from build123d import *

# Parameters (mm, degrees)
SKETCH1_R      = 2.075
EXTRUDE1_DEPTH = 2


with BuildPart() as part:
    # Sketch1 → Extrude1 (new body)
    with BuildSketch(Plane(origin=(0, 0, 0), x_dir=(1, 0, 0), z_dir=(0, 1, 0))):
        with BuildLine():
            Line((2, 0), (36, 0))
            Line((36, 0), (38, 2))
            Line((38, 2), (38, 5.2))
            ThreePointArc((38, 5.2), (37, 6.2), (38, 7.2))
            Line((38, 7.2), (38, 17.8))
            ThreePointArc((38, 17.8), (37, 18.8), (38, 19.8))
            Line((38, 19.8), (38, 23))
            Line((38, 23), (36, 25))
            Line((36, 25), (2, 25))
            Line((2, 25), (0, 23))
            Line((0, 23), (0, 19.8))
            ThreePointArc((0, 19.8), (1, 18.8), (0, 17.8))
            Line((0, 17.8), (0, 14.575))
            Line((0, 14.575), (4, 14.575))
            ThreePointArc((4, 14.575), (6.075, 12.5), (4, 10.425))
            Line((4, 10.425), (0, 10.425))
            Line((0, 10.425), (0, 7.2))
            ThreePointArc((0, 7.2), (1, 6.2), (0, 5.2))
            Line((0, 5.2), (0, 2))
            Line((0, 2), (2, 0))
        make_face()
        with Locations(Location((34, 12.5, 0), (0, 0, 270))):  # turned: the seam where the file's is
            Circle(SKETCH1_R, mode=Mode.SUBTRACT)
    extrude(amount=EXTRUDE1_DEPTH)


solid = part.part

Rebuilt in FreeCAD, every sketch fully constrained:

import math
import FreeCAD as App
import Part
import Sketcher
Q = App.Units.Quantity

doc = App.newDocument("Part")
body = doc.addObject("PartDesign::Body", "Body")

# Sketch on XZ plane
sketch1 = body.newObject("Sketcher::SketchObject", "Sketch")
sketch1.AttachmentSupport = (doc.getObject("XZ_Plane"), [""])
sketch1.MapMode = "FlatFace"
sketch1.addGeometry([
    Part.LineSegment(App.Vector(2, 0, 0), App.Vector(36, 0, 0)),  # 0
    Part.LineSegment(App.Vector(36, 0, 0), App.Vector(38, -2, 0)),  # 1
    Part.LineSegment(App.Vector(38, -2, 0), App.Vector(38, -5.2, 0)),  # 2
    Part.ArcOfCircle(Part.Circle(App.Vector(38, -6.2, 0), App.Vector(0, 0, 1), 1), math.radians(90), math.radians(270)),  # 3
    Part.LineSegment(App.Vector(38, -7.2, 0), App.Vector(38, -17.8, 0)),  # 4
    Part.ArcOfCircle(Part.Circle(App.Vector(38, -18.8, 0), App.Vector(0, 0, 1), 1), math.radians(90), math.radians(270)),  # 5
    Part.LineSegment(App.Vector(38, -19.8, 0), App.Vector(38, -23, 0)),  # 6
    Part.LineSegment(App.Vector(38, -23, 0), App.Vector(36, -25, 0)),  # 7
    Part.LineSegment(App.Vector(36, -25, 0), App.Vector(2, -25, 0)),  # 8
    Part.LineSegment(App.Vector(2, -25, 0), App.Vector(0, -23, 0)),  # 9
    Part.LineSegment(App.Vector(0, -23, 0), App.Vector(0, -19.8, 0)),  # 10
    Part.ArcOfCircle(Part.Circle(App.Vector(0, -18.8, 0), App.Vector(0, 0, 1), 1), math.radians(-90), math.radians(90)),  # 11
    Part.LineSegment(App.Vector(0, -17.8, 0), App.Vector(0, -14.6, 0)),  # 12
    Part.LineSegment(App.Vector(0, -14.6, 0), App.Vector(4, -14.6, 0)),  # 13
    Part.ArcOfCircle(Part.Circle(App.Vector(4, -12.5, 0), App.Vector(0, 0, 1), 2.1), math.radians(-90), math.radians(90)),  # 14
    Part.LineSegment(App.Vector(4, -10.4, 0), App.Vector(0, -10.4, 0)),  # 15
    Part.LineSegment(App.Vector(0, -10.4, 0), App.Vector(0, -7.2, 0)),  # 16
    Part.ArcOfCircle(Part.Circle(App.Vector(0, -6.2, 0), App.Vector(0, 0, 1), 1), math.radians(-90), math.radians(90)),  # 17
    Part.LineSegment(App.Vector(0, -5.2, 0), App.Vector(0, -2, 0)),  # 18
    Part.LineSegment(App.Vector(0, -2, 0), App.Vector(2, 0, 0)),  # 19
    Part.Circle(App.Vector(34, -12.5, 0), App.Vector(0, 0, 1), 2.1),  # 20
], False)
sketch1.addConstraint([
    Sketcher.Constraint("Coincident", 0, 2, 1, 1),
    Sketcher.Constraint("Coincident", 1, 2, 2, 1),
    Sketcher.Constraint("Coincident", 2, 2, 3, 1),
    Sketcher.Constraint("Coincident", 3, 2, 4, 1),
    Sketcher.Constraint("Coincident", 4, 2, 5, 1),
    Sketcher.Constraint("Coincident", 5, 2, 6, 1),
    Sketcher.Constraint("Coincident", 6, 2, 7, 1),
    Sketcher.Constraint("Coincident", 7, 2, 8, 1),
    Sketcher.Constraint("Coincident", 8, 2, 9, 1),
    Sketcher.Constraint("Coincident", 9, 2, 10, 1),
    Sketcher.Constraint("Coincident", 10, 2, 11, 1),
    Sketcher.Constraint("Coincident", 11, 2, 12, 1),
    Sketcher.Constraint("Coincident", 12, 2, 13, 1),
    Sketcher.Constraint("Tangent", 13, 2, 14, 1),
    Sketcher.Constraint("Tangent", 14, 2, 15, 1),
    Sketcher.Constraint("Coincident", 15, 2, 16, 1),
    Sketcher.Constraint("Coincident", 16, 2, 17, 1),
    Sketcher.Constraint("Coincident", 17, 2, 18, 1),
    Sketcher.Constraint("Coincident", 18, 2, 19, 1),
    Sketcher.Constraint("Coincident", 19, 2, 0, 1),
    Sketcher.Constraint("Horizontal", 0),
    Sketcher.Constraint("Vertical", 2),
    Sketcher.Constraint("Vertical", 4),
    Sketcher.Constraint("Vertical", 6),
    Sketcher.Constraint("Horizontal", 8),
    Sketcher.Constraint("Vertical", 10),
    Sketcher.Constraint("Vertical", 12),
    Sketcher.Constraint("Horizontal", 13),
    Sketcher.Constraint("Horizontal", 15),
    Sketcher.Constraint("Vertical", 16),
    Sketcher.Constraint("Vertical", 18),
    Sketcher.Constraint("Equal", 3, 5),
    Sketcher.Constraint("Equal", 5, 11),
    Sketcher.Constraint("Equal", 11, 17),
    Sketcher.Constraint("Equal", 14, 20),
    Sketcher.Constraint("PointOnObject", 11, 3, -2),
    Sketcher.Constraint("PointOnObject", 17, 3, -2),
    Sketcher.Constraint("PointOnObject", 0, 2, -1),
    Sketcher.Constraint("PointOnObject", 9, 2, -2),
    Sketcher.Constraint("PointOnObject", 11, 2, -2),
    Sketcher.Constraint("PointOnObject", 15, 2, -2),
    Sketcher.Constraint("PointOnObject", 17, 2, -2),
    Sketcher.Constraint("Perpendicular", 1, 7),
    Sketcher.Constraint("Perpendicular", 7, 9),
    Sketcher.Constraint("Perpendicular", 9, 19),
    Sketcher.Constraint("Horizontal", 5, 3, 11, 3),
    Sketcher.Constraint("Horizontal", 3, 3, 17, 3),
    Sketcher.Constraint("Horizontal", 14, 3, 20, 3),
    Sketcher.Constraint("Horizontal", 6, 2, 9, 2),
    Sketcher.Constraint("Horizontal", 1, 2, 18, 2),
    Sketcher.Constraint("Vertical", 3, 3, 5, 3),
    Sketcher.Constraint("Vertical", 5, 3, 1, 2),
    Sketcher.Constraint("Vertical", 2, 2, 3, 2),
    Sketcher.Constraint("Vertical", 4, 2, 5, 2),
    Sketcher.Constraint("Vertical", 0, 2, 7, 2),
    Sketcher.Constraint("Vertical", 8, 2, 19, 2),
    Sketcher.Constraint("Equal", 2, 6),
    Sketcher.Constraint("Equal", 12, 16),
    Sketcher.Constraint("Radius", 3, Q("1 mm")),
    Sketcher.Constraint("Diameter", 20, Q("4.15 mm")),
    Sketcher.Constraint("DistanceX", 0, 1, 0, 2, Q("34 mm")),
    Sketcher.Constraint("DistanceX", 13, 1, 13, 2, Q("4 mm")),
    Sketcher.Constraint("DistanceY", 2, 2, 2, 1, Q("3.2 mm")),
    Sketcher.Constraint("DistanceY", 4, 2, 4, 1, Q("10.6 mm")),
    Sketcher.Constraint("DistanceX", -1, 1, 3, 3, Q("38 mm")),
    Sketcher.Constraint("DistanceX", -1, 1, 20, 3, Q("34 mm")),
])
pad1 = body.newObject("PartDesign::Pad", "Pad")
pad1.Profile = sketch1
pad1.Length = 2
pad1.Reversed = True

doc.recompute()
